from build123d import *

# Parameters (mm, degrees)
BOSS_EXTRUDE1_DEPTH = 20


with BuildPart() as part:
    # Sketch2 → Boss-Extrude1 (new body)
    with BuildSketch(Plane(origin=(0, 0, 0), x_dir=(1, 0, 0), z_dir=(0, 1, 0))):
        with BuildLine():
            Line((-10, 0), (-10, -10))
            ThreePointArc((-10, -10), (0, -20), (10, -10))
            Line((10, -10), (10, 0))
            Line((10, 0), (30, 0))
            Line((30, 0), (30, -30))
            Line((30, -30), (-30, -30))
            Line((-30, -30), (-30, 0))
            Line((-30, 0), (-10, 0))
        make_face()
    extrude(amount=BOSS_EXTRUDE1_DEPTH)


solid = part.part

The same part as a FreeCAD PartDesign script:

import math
import FreeCAD as App
import Part
import Sketcher
from FreeCAD import Vector

doc = App.newDocument("Part")
params = doc.addObject("Spreadsheet::Sheet", "Params")
for row, (alias, value) in enumerate([
    ("sketch1_radius", "10 mm"),
    ("sketch1_width", "20 mm"),
    ("sketch1_height", "10 mm"),
    ("sketch1_height2", "30 mm"),
    ("pad1_length", "20 mm"),
], start=1):
    params.set(f"A{row}", alias)
    params.set(f"B{row}", "=" + value)
    params.setAlias(f"B{row}", alias)

body = doc.addObject("PartDesign::Body", "Body")

# Sketch on XZ plane
sketch1 = body.newObject("Sketcher::SketchObject", "Sketch")
sketch1.AttachmentSupport = (doc.getObject("XZ_Plane"), [""])
sketch1.MapMode = "FlatFace"
sketch1.addGeometry([
    Part.LineSegment(Vector(-10, 10, 0), Vector(-10, 0, 0)),  # 0
    Part.LineSegment(Vector(-10, 0, 0), Vector(-30, 0, 0)),  # 1
    Part.LineSegment(Vector(-30, 0, 0), Vector(-30, 30, 0)),  # 2
    Part.LineSegment(Vector(-30, 30, 0), Vector(30, 30, 0)),  # 3
    Part.LineSegment(Vector(30, 30, 0), Vector(30, 0, 0)),  # 4
    Part.LineSegment(Vector(30, 0, 0), Vector(10, 0, 0)),  # 5
    Part.LineSegment(Vector(10, 0, 0), Vector(10, 10, 0)),  # 6
    Part.ArcOfCircle(Part.Circle(Vector(0, 10, 0), Vector(0, 0, 1), 10), math.radians(0), math.radians(180)),  # 7
], False)
sketch1.addConstraint([
    Sketcher.Constraint("Coincident", 0, 2, 1, 1),
    Sketcher.Constraint("Coincident", 1, 2, 2, 1),
    Sketcher.Constraint("Coincident", 2, 2, 3, 1),
    Sketcher.Constraint("Coincident", 3, 2, 4, 1),
    Sketcher.Constraint("Coincident", 4, 2, 5, 1),
    Sketcher.Constraint("Coincident", 5, 2, 6, 1),
    Sketcher.Constraint("Tangent", 6, 2, 7, 1),
    Sketcher.Constraint("Tangent", 7, 2, 0, 1),
    Sketcher.Constraint("Vertical", 0),
    Sketcher.Constraint("Horizontal", 1),
    Sketcher.Constraint("Vertical", 2),
    Sketcher.Constraint("Horizontal", 3),
    Sketcher.Constraint("Vertical", 4),
    Sketcher.Constraint("Horizontal", 5),
    Sketcher.Constraint("Vertical", 6),
    Sketcher.Constraint("Symmetric", 1, 2, 4, 2, -1, 1),
    Sketcher.Constraint("Symmetric", 0, 2, 5, 2, -2),
    Sketcher.Constraint("Radius", 7, 10.0),
    Sketcher.Constraint("DistanceX", 1, 2, 1, 1, 20.0),
    Sketcher.Constraint("DistanceY", 0, 2, 0, 1, 10.0),
    Sketcher.Constraint("DistanceY", 2, 1, 2, 2, 30.0),
])
sketch1.setExpression("Constraints[17]", "Params.sketch1_radius")
sketch1.setExpression("Constraints[18]", "Params.sketch1_width")
sketch1.setExpression("Constraints[19]", "Params.sketch1_height")
sketch1.setExpression("Constraints[20]", "Params.sketch1_height2")
pad1 = body.newObject("PartDesign::Pad", "Pad")
pad1.Profile = sketch1
pad1.setExpression("Length", "Params.pad1_length")
pad1.Reversed = True

doc.recompute()
